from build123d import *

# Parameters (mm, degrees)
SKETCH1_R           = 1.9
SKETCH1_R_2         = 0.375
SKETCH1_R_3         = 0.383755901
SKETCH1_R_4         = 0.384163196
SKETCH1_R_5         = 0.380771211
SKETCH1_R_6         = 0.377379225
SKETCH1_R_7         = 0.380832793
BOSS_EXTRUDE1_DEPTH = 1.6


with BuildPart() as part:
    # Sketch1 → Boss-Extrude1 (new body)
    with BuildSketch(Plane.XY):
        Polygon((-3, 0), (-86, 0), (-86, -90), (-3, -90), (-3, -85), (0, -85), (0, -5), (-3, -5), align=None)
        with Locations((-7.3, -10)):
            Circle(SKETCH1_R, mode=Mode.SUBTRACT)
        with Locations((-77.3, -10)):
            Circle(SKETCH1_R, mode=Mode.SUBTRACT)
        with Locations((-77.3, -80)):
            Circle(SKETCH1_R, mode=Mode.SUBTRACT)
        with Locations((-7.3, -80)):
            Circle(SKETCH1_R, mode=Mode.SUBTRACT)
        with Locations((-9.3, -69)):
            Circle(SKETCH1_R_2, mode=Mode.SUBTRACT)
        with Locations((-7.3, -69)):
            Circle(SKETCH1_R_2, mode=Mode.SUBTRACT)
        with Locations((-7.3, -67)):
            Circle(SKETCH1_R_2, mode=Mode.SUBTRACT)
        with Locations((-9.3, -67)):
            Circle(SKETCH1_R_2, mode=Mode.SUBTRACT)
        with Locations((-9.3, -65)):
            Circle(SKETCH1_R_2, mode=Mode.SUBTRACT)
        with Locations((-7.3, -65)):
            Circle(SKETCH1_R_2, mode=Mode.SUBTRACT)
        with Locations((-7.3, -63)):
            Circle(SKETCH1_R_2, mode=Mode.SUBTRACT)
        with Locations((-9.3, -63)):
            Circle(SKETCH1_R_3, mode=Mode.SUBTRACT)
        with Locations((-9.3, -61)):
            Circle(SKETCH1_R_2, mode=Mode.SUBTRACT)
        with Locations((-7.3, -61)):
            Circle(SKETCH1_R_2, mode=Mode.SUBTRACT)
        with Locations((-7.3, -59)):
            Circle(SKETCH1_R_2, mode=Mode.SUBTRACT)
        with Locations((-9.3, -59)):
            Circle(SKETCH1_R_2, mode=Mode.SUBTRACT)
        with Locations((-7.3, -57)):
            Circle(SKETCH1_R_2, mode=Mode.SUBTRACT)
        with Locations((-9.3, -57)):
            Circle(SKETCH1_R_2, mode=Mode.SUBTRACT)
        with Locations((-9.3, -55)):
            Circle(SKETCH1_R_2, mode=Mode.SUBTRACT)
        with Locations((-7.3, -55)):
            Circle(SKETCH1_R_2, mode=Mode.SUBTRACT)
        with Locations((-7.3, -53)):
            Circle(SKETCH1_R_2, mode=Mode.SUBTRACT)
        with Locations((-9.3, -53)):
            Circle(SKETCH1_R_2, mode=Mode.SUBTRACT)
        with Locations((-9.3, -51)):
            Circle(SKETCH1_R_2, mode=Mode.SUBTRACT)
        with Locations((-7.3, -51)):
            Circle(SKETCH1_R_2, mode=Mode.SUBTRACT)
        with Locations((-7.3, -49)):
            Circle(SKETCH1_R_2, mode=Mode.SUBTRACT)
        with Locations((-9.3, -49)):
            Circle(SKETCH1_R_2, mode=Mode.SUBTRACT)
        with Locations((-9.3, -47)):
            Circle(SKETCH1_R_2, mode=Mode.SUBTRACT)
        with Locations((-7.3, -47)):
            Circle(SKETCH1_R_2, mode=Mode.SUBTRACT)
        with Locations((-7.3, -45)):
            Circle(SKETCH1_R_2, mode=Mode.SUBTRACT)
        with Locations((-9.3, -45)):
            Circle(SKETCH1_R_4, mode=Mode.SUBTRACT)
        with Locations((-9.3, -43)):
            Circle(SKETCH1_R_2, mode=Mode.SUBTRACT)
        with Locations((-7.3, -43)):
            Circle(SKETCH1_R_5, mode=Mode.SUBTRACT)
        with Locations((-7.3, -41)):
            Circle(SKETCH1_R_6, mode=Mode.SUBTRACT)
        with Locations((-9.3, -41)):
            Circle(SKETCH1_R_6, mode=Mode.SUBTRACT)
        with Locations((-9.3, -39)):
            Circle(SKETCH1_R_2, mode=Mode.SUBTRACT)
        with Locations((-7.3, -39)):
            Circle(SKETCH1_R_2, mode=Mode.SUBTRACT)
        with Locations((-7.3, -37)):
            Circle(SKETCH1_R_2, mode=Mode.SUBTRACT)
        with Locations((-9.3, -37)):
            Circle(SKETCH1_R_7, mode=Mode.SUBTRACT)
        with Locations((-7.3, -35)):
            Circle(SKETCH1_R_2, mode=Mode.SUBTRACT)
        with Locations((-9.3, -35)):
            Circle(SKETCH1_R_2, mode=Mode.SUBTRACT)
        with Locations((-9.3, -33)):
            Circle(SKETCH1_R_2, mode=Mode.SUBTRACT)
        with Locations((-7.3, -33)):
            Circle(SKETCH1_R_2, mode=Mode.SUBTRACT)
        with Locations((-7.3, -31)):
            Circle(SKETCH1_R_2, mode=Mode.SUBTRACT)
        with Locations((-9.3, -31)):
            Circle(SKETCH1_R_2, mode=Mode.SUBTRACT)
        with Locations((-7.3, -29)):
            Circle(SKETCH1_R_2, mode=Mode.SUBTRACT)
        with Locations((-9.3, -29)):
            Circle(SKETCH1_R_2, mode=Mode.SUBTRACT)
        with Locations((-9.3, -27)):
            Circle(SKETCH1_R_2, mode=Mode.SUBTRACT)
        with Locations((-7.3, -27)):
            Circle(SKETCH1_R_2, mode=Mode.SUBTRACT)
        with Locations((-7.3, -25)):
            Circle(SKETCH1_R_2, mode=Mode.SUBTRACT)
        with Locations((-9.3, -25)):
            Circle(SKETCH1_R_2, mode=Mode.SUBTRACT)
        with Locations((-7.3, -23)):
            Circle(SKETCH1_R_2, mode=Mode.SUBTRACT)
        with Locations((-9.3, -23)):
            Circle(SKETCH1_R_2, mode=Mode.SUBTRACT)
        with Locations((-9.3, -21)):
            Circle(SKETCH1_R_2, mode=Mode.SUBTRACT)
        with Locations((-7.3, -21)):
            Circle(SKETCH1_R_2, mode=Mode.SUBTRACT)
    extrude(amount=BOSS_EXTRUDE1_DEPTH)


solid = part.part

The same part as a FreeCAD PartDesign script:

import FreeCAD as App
import Part
import Sketcher

doc = App.newDocument("Part")
body = doc.addObject("PartDesign::Body", "Body")

# Sketch on XY plane
sketch1 = body.newObject("Sketcher::SketchObject", "Sketch")
sketch1.AttachmentSupport = (doc.getObject("XY_Plane"), [""])
sketch1.MapMode = "FlatFace"
sketch1.addGeometry(Part.LineSegment(App.Vector(-3, 0, 0), App.Vector(-86, 0, 0)), False)
sketch1.addGeometry(Part.LineSegment(App.Vector(-86, 0, 0), App.Vector(-86, -90, 0)), False)
sketch1.addGeometry(Part.LineSegment(App.Vector(-86, -90, 0), App.Vector(-3, -90, 0)), False)
sketch1.addGeometry(Part.LineSegment(App.Vector(-3, -90, 0), App.Vector(-3, -85, 0)), False)
sketch1.addGeometry(Part.LineSegment(App.Vector(-3, -85, 0), App.Vector(0, -85, 0)), False)
sketch1.addGeometry(Part.LineSegment(App.Vector(0, -85, 0), App.Vector(0, -5, 0)), False)
sketch1.addGeometry(Part.LineSegment(App.Vector(0, -5, 0), App.Vector(-3, -5, 0)), False)
sketch1.addGeometry(Part.LineSegment(App.Vector(-3, -5, 0), App.Vector(-3, 0, 0)), False)
sketch1.addGeometry(Part.Circle(App.Vector(-77.3, -80, 0), App.Vector(0, 0, 1), 1.9), False)
sketch1.addGeometry(Part.Circle(App.Vector(-7.3, -80, 0), App.Vector(0, 0, 1), 1.9), False)
sketch1.addGeometry(Part.Circle(App.Vector(-9.3, -69, 0), App.Vector(0, 0, 1), 0.375), False)
sketch1.addGeometry(Part.Circle(App.Vector(-7.3, -69, 0), App.Vector(0, 0, 1), 0.375), False)
sketch1.addGeometry(Part.Circle(App.Vector(-9.3, -67, 0), App.Vector(0, 0, 1), 0.375), False)
sketch1.addGeometry(Part.Circle(App.Vector(-7.3, -67, 0), App.Vector(0, 0, 1), 0.375), False)
sketch1.addGeometry(Part.Circle(App.Vector(-9.3, -65, 0), App.Vector(0, 0, 1), 0.375), False)
sketch1.addGeometry(Part.Circle(App.Vector(-7.3, -65, 0), App.Vector(0, 0, 1), 0.375), False)
sketch1.addGeometry(Part.Circle(App.Vector(-9.3, -63, 0), App.Vector(0, 0, 1), 0.383756), False)
sketch1.addGeometry(Part.Circle(App.Vector(-7.3, -63, 0), App.Vector(0, 0, 1), 0.375), False)
sketch1.addGeometry(Part.Circle(App.Vector(-9.3, -61, 0), App.Vector(0, 0, 1), 0.375), False)
sketch1.addGeometry(Part.Circle(App.Vector(-9.3, -59, 0), App.Vector(0, 0, 1), 0.375), False)
sketch1.addGeometry(Part.Circle(App.Vector(-7.3, -61, 0), App.Vector(0, 0, 1), 0.375), False)
sketch1.addGeometry(Part.Circle(App.Vector(-7.3, -59, 0), App.Vector(0, 0, 1), 0.375), False)
sketch1.addGeometry(Part.Circle(App.Vector(-9.3, -57, 0), App.Vector(0, 0, 1), 0.375), False)
sketch1.addGeometry(Part.Circle(App.Vector(-7.3, -57, 0), App.Vector(0, 0, 1), 0.375), False)
sketch1.addGeometry(Part.Circle(App.Vector(-9.3, -55, 0), App.Vector(0, 0, 1), 0.375), False)
sketch1.addGeometry(Part.Circle(App.Vector(-7.3, -55, 0), App.Vector(0, 0, 1), 0.375), False)
sketch1.addGeometry(Part.Circle(App.Vector(-9.3, -53, 0), App.Vector(0, 0, 1), 0.375), False)
sketch1.addGeometry(Part.Circle(App.Vector(-7.3, -53, 0), App.Vector(0, 0, 1), 0.375), False)
sketch1.addGeometry(Part.Circle(App.Vector(-9.3, -51, 0), App.Vector(0, 0, 1), 0.375), False)
sketch1.addGeometry(Part.Circle(App.Vector(-7.3, -51, 0), App.Vector(0, 0, 1), 0.375), False)
sketch1.addGeometry(Part.Circle(App.Vector(-9.3, -49, 0), App.Vector(0, 0, 1), 0.375), False)
sketch1.addGeometry(Part.Circle(App.Vector(-7.3, -49, 0), App.Vector(0, 0, 1), 0.375), False)
sketch1.addGeometry(Part.Circle(App.Vector(-9.3, -47, 0), App.Vector(0, 0, 1), 0.375), False)
sketch1.addGeometry(Part.Circle(App.Vector(-7.3, -47, 0), App.Vector(0, 0, 1), 0.375), False)
sketch1.addGeometry(Part.Circle(App.Vector(-77.3, -10, 0), App.Vector(0, 0, 1), 1.9), False)
sketch1.addGeometry(Part.Circle(App.Vector(-9.3, -45, 0), App.Vector(0, 0, 1), 0.384163), False)
sketch1.addGeometry(Part.Circle(App.Vector(-9.3, -43, 0), App.Vector(0, 0, 1), 0.375), False)
sketch1.addGeometry(Part.Circle(App.Vector(-7.3, -45, 0), App.Vector(0, 0, 1), 0.375), False)
sketch1.addGeometry(Part.Circle(App.Vector(-7.3, -43, 0), App.Vector(0, 0, 1), 0.380771), False)
sketch1.addGeometry(Part.Circle(App.Vector(-9.3, -41, 0), App.Vector(0, 0, 1), 0.377379), False)
sketch1.addGeometry(Part.Circle(App.Vector(-7.3, -41, 0), App.Vector(0, 0, 1), 0.377379), False)
sketch1.addGeometry(Part.Circle(App.Vector(-9.3, -39, 0), App.Vector(0, 0, 1), 0.375), False)
sketch1.addGeometry(Part.Circle(App.Vector(-7.3, -39, 0), App.Vector(0, 0, 1), 0.375), False)
sketch1.addGeometry(Part.Circle(App.Vector(-9.3, -37, 0), App.Vector(0, 0, 1), 0.380833), False)
sketch1.addGeometry(Part.Circle(App.Vector(-7.3, -37, 0), App.Vector(0, 0, 1), 0.375), False)
sketch1.addGeometry(Part.Circle(App.Vector(-9.3, -35, 0), App.Vector(0, 0, 1), 0.375), False)
sketch1.addGeometry(Part.Circle(App.Vector(-7.3, -35, 0), App.Vector(0, 0, 1), 0.375), False)
sketch1.addGeometry(Part.Circle(App.Vector(-9.3, -33, 0), App.Vector(0, 0, 1), 0.375), False)
sketch1.addGeometry(Part.Circle(App.Vector(-7.3, -33, 0), App.Vector(0, 0, 1), 0.375), False)
sketch1.addGeometry(Part.Circle(App.Vector(-9.3, -31, 0), App.Vector(0, 0, 1), 0.375), False)
sketch1.addGeometry(Part.Circle(App.Vector(-9.3, -29, 0), App.Vector(0, 0, 1), 0.375), False)
sketch1.addGeometry(Part.Circle(App.Vector(-7.3, -31, 0), App.Vector(0, 0, 1), 0.375), False)
sketch1.addGeometry(Part.Circle(App.Vector(-7.3, -29, 0), App.Vector(0, 0, 1), 0.375), False)
sketch1.addGeometry(Part.Circle(App.Vector(-9.3, -27, 0), App.Vector(0, 0, 1), 0.375), False)
sketch1.addGeometry(Part.Circle(App.Vector(-7.3, -27, 0), App.Vector(0, 0, 1), 0.375), False)
sketch1.addGeometry(Part.Circle(App.Vector(-9.3, -25, 0), App.Vector(0, 0, 1), 0.375), False)
sketch1.addGeometry(Part.Circle(App.Vector(-7.3, -25, 0), App.Vector(0, 0, 1), 0.375), False)
sketch1.addGeometry(Part.Circle(App.Vector(-9.3, -23, 0), App.Vector(0, 0, 1), 0.375), False)
sketch1.addGeometry(Part.Circle(App.Vector(-7.3, -23, 0), App.Vector(0, 0, 1), 0.375), False)
sketch1.addGeometry(Part.Circle(App.Vector(-9.3, -21, 0), App.Vector(0, 0, 1), 0.375), False)
sketch1.addGeometry(Part.Circle(App.Vector(-7.3, -21, 0), App.Vector(0, 0, 1), 0.375), False)
sketch1.addGeometry(Part.Circle(App.Vector(-7.3, -10, 0), App.Vector(0, 0, 1), 1.9), False)
sketch1.addConstraint(Sketcher.Constraint("Coincident", 0, 2, 1, 1))
sketch1.addConstraint(Sketcher.Constraint("Coincident", 1, 2, 2, 1))
sketch1.addConstraint(Sketcher.Constraint("Coincident", 2, 2, 3, 1))
sketch1.addConstraint(Sketcher.Constraint("Coincident", 3, 2, 4, 1))
sketch1.addConstraint(Sketcher.Constraint("Coincident", 4, 2, 5, 1))
sketch1.addConstraint(Sketcher.Constraint("Coincident", 5, 2, 6, 1))
sketch1.addConstraint(Sketcher.Constraint("Coincident", 6, 2, 7, 1))
sketch1.addConstraint(Sketcher.Constraint("Coincident", 7, 2, 0, 1))
sketch1.addConstraint(Sketcher.Constraint("Horizontal", 0))
sketch1.addConstraint(Sketcher.Constraint("Vertical", 1))
sketch1.addConstraint(Sketcher.Constraint("Horizontal", 2))
sketch1.addConstraint(Sketcher.Constraint("Vertical", 3))
sketch1.addConstraint(Sketcher.Constraint("Horizontal", 4))
sketch1.addConstraint(Sketcher.Constraint("Vertical", 5))
sketch1.addConstraint(Sketcher.Constraint("Horizontal", 6))
sketch1.addConstraint(Sketcher.Constraint("Vertical", 7))
sketch1.addConstraint(Sketcher.Constraint("Equal", 8, 9))
sketch1.addConstraint(Sketcher.Constraint("Equal", 10, 11))
sketch1.addConstraint(Sketcher.Constraint("Equal", 11, 12))
sketch1.addConstraint(Sketcher.Constraint("Equal", 12, 13))
sketch1.addConstraint(Sketcher.Constraint("Equal", 13, 14))
sketch1.addConstraint(Sketcher.Constraint("Equal", 14, 15))
sketch1.addConstraint(Sketcher.Constraint("Equal", 15, 17))
sketch1.addConstraint(Sketcher.Constraint("Equal", 17, 18))
sketch1.addConstraint(Sketcher.Constraint("Equal", 18, 19))
sketch1.addConstraint(Sketcher.Constraint("Equal", 19, 20))
sketch1.addConstraint(Sketcher.Constraint("Equal", 20, 21))
sketch1.addConstraint(Sketcher.Constraint("Equal", 21, 22))
sketch1.addConstraint(Sketcher.Constraint("Equal", 22, 23))
sketch1.addConstraint(Sketcher.Constraint("Equal", 23, 24))
sketch1.addConstraint(Sketcher.Constraint("Equal", 24, 25))
sketch1.addConstraint(Sketcher.Constraint("Equal", 25, 26))
sketch1.addConstraint(Sketcher.Constraint("Equal", 26, 27))
sketch1.addConstraint(Sketcher.Constraint("Equal", 27, 28))
sketch1.addConstraint(Sketcher.Constraint("Equal", 28, 29))
sketch1.addConstraint(Sketcher.Constraint("Equal", 29, 30))
sketch1.addConstraint(Sketcher.Constraint("Equal", 30, 31))
sketch1.addConstraint(Sketcher.Constraint("Equal", 31, 32))
sketch1.addConstraint(Sketcher.Constraint("Equal", 32, 33))
sketch1.addConstraint(Sketcher.Constraint("Equal", 9, 34))
sketch1.addConstraint(Sketcher.Constraint("Equal", 33, 36))
sketch1.addConstraint(Sketcher.Constraint("Equal", 36, 37))
sketch1.addConstraint(Sketcher.Constraint("Equal", 39, 40))
sketch1.addConstraint(Sketcher.Constraint("Equal", 37, 41))
sketch1.addConstraint(Sketcher.Constraint("Equal", 41, 42))
sketch1.addConstraint(Sketcher.Constraint("Equal", 42, 44))
sketch1.addConstraint(Sketcher.Constraint("Equal", 44, 45))
sketch1.addConstraint(Sketcher.Constraint("Equal", 45, 46))
sketch1.addConstraint(Sketcher.Constraint("Equal", 46, 47))
sketch1.addConstraint(Sketcher.Constraint("Equal", 47, 48))
sketch1.addConstraint(Sketcher.Constraint("Equal", 48, 49))
sketch1.addConstraint(Sketcher.Constraint("Equal", 49, 50))
sketch1.addConstraint(Sketcher.Constraint("Equal", 50, 51))
sketch1.addConstraint(Sketcher.Constraint("Equal", 51, 52))
sketch1.addConstraint(Sketcher.Constraint("Equal", 52, 53))
sketch1.addConstraint(Sketcher.Constraint("Equal", 53, 54))
sketch1.addConstraint(Sketcher.Constraint("Equal", 54, 55))
sketch1.addConstraint(Sketcher.Constraint("Equal", 55, 56))
sketch1.addConstraint(Sketcher.Constraint("Equal", 56, 57))
sketch1.addConstraint(Sketcher.Constraint("Equal", 57, 58))
sketch1.addConstraint(Sketcher.Constraint("Equal", 58, 59))
sketch1.addConstraint(Sketcher.Constraint("Equal", 59, 60))
sketch1.addConstraint(Sketcher.Constraint("Equal", 34, 61))
sketch1.addConstraint(Sketcher.Constraint("PointOnObject", 0, 2, -1))
sketch1.addConstraint(Sketcher.Constraint("PointOnObject", 4, 2, -2))
sketch1.addConstraint(Sketcher.Constraint("Horizontal", 8, 3, 9, 3))
sketch1.addConstraint(Sketcher.Constraint("Horizontal", 10, 3, 11, 3))
sketch1.addConstraint(Sketcher.Constraint("Horizontal", 12, 3, 13, 3))
sketch1.addConstraint(Sketcher.Constraint("Horizontal", 14, 3, 15, 3))
sketch1.addConstraint(Sketcher.Constraint("Horizontal", 16, 3, 17, 3))
sketch1.addConstraint(Sketcher.Constraint("Horizontal", 18, 3, 20, 3))
sketch1.addConstraint(Sketcher.Constraint("Horizontal", 19, 3, 21, 3))
sketch1.addConstraint(Sketcher.Constraint("Horizontal", 22, 3, 23, 3))
sketch1.addConstraint(Sketcher.Constraint("Horizontal", 24, 3, 25, 3))
sketch1.addConstraint(Sketcher.Constraint("Horizontal", 26, 3, 27, 3))
sketch1.addConstraint(Sketcher.Constraint("Horizontal", 28, 3, 29, 3))
sketch1.addConstraint(Sketcher.Constraint("Horizontal", 30, 3, 31, 3))
sketch1.addConstraint(Sketcher.Constraint("Horizontal", 32, 3, 33, 3))
sketch1.addConstraint(Sketcher.Constraint("Horizontal", 35, 3, 37, 3))
sketch1.addConstraint(Sketcher.Constraint("Horizontal", 36, 3, 38, 3))
sketch1.addConstraint(Sketcher.Constraint("Horizontal", 39, 3, 40, 3))
sketch1.addConstraint(Sketcher.Constraint("Horizontal", 41, 3, 42, 3))
sketch1.addConstraint(Sketcher.Constraint("Horizontal", 43, 3, 44, 3))
sketch1.addConstraint(Sketcher.Constraint("Horizontal", 45, 3, 46, 3))
sketch1.addConstraint(Sketcher.Constraint("Horizontal", 47, 3, 48, 3))
sketch1.addConstraint(Sketcher.Constraint("Horizontal", 49, 3, 51, 3))
sketch1.addConstraint(Sketcher.Constraint("Horizontal", 50, 3, 52, 3))
sketch1.addConstraint(Sketcher.Constraint("Horizontal", 53, 3, 54, 3))
sketch1.addConstraint(Sketcher.Constraint("Horizontal", 55, 3, 56, 3))
sketch1.addConstraint(Sketcher.Constraint("Horizontal", 57, 3, 58, 3))
sketch1.addConstraint(Sketcher.Constraint("Horizontal", 59, 3, 60, 3))
sketch1.addConstraint(Sketcher.Constraint("Horizontal", 34, 3, 61, 3))
sketch1.addConstraint(Sketcher.Constraint("Vertical", 9, 3, 11, 3))
sketch1.addConstraint(Sketcher.Constraint("Vertical", 10, 3, 12, 3))
sketch1.addConstraint(Sketcher.Constraint("Vertical", 11, 3, 13, 3))
sketch1.addConstraint(Sketcher.Constraint("Vertical", 12, 3, 14, 3))
sketch1.addConstraint(Sketcher.Constraint("Vertical", 13, 3, 15, 3))
sketch1.addConstraint(Sketcher.Constraint("Vertical", 14, 3, 16, 3))
sketch1.addConstraint(Sketcher.Constraint("Vertical", 15, 3, 17, 3))
sketch1.addConstraint(Sketcher.Constraint("Vertical", 16, 3, 18, 3))
sketch1.addConstraint(Sketcher.Constraint("Vertical", 18, 3, 19, 3))
sketch1.addConstraint(Sketcher.Constraint("Vertical", 17, 3, 20, 3))
sketch1.addConstraint(Sketcher.Constraint("Vertical", 20, 3, 21, 3))
sketch1.addConstraint(Sketcher.Constraint("Vertical", 19, 3, 22, 3))
sketch1.addConstraint(Sketcher.Constraint("Vertical", 21, 3, 23, 3))
sketch1.addConstraint(Sketcher.Constraint("Vertical", 22, 3, 24, 3))
sketch1.addConstraint(Sketcher.Constraint("Vertical", 23, 3, 25, 3))
sketch1.addConstraint(Sketcher.Constraint("Vertical", 24, 3, 26, 3))
sketch1.addConstraint(Sketcher.Constraint("Vertical", 25, 3, 27, 3))
sketch1.addConstraint(Sketcher.Constraint("Vertical", 26, 3, 28, 3))
sketch1.addConstraint(Sketcher.Constraint("Vertical", 27, 3, 29, 3))
sketch1.addConstraint(Sketcher.Constraint("Vertical", 28, 3, 30, 3))
sketch1.addConstraint(Sketcher.Constraint("Vertical", 29, 3, 31, 3))
sketch1.addConstraint(Sketcher.Constraint("Vertical", 30, 3, 32, 3))
sketch1.addConstraint(Sketcher.Constraint("Vertical", 31, 3, 33, 3))
sketch1.addConstraint(Sketcher.Constraint("Vertical", 8, 3, 34, 3))
sketch1.addConstraint(Sketcher.Constraint("Vertical", 32, 3, 35, 3))
sketch1.addConstraint(Sketcher.Constraint("Vertical", 35, 3, 36, 3))
sketch1.addConstraint(Sketcher.Constraint("Vertical", 33, 3, 37, 3))
sketch1.addConstraint(Sketcher.Constraint("Vertical", 37, 3, 38, 3))
sketch1.addConstraint(Sketcher.Constraint("Vertical", 36, 3, 39, 3))
sketch1.addConstraint(Sketcher.Constraint("Vertical", 38, 3, 40, 3))
sketch1.addConstraint(Sketcher.Constraint("Vertical", 39, 3, 41, 3))
sketch1.addConstraint(Sketcher.Constraint("Vertical", 40, 3, 42, 3))
sketch1.addConstraint(Sketcher.Constraint("Vertical", 41, 3, 43, 3))
sketch1.addConstraint(Sketcher.Constraint("Vertical", 42, 3, 44, 3))
sketch1.addConstraint(Sketcher.Constraint("Vertical", 43, 3, 45, 3))
sketch1.addConstraint(Sketcher.Constraint("Vertical", 44, 3, 46, 3))
sketch1.addConstraint(Sketcher.Constraint("Vertical", 45, 3, 47, 3))
sketch1.addConstraint(Sketcher.Constraint("Vertical", 46, 3, 48, 3))
sketch1.addConstraint(Sketcher.Constraint("Vertical", 47, 3, 49, 3))
sketch1.addConstraint(Sketcher.Constraint("Vertical", 49, 3, 50, 3))
sketch1.addConstraint(Sketcher.Constraint("Vertical", 48, 3, 51, 3))
sketch1.addConstraint(Sketcher.Constraint("Vertical", 51, 3, 52, 3))
sketch1.addConstraint(Sketcher.Constraint("Vertical", 50, 3, 53, 3))
sketch1.addConstraint(Sketcher.Constraint("Vertical", 52, 3, 54, 3))
sketch1.addConstraint(Sketcher.Constraint("Vertical", 53, 3, 55, 3))
sketch1.addConstraint(Sketcher.Constraint("Vertical", 54, 3, 56, 3))
sketch1.addConstraint(Sketcher.Constraint("Vertical", 55, 3, 57, 3))
sketch1.addConstraint(Sketcher.Constraint("Vertical", 56, 3, 58, 3))
sketch1.addConstraint(Sketcher.Constraint("Vertical", 57, 3, 59, 3))
sketch1.addConstraint(Sketcher.Constraint("Vertical", 58, 3, 60, 3))
sketch1.addConstraint(Sketcher.Constraint("Vertical", 60, 3, 61, 3))
sketch1.addConstraint(Sketcher.Constraint("Vertical", 3, 2, 6, 2))
sketch1.addConstraint(Sketcher.Constraint("Equal", 3, 7))
sketch1.addConstraint(Sketcher.Constraint("Diameter", 8, 3.8))
sketch1.addConstraint(Sketcher.Constraint("Diameter", 10, 0.75))
sketch1.addConstraint(Sketcher.Constraint("DistanceX", 0, 2, 0, 1, 83.0))
sketch1.addConstraint(Sketcher.Constraint("DistanceX", 4, 1, 4, 2, 3.0))
sketch1.addConstraint(Sketcher.Constraint("DistanceY", 1, 2, 1, 1, 90.0))
sketch1.addConstraint(Sketcher.Constraint("DistanceY", 3, 1, 3, 2, 5.0))
sketch1.addConstraint(Sketcher.Constraint("DistanceY", 8, 3, -1, 1, 80.0))
sketch1.addConstraint(Sketcher.Constraint("DistanceY", 10, 3, -1, 1, 69.0))
sketch1.addConstraint(Sketcher.Constraint("DistanceY", 12, 3, -1, 1, 67.0))
sketch1.addConstraint(Sketcher.Constraint("DistanceY", 14, 3, -1, 1, 65.0))
sketch1.addConstraint(Sketcher.Constraint("DistanceY", 16, 3, -1, 1, 63.0))
sketch1.addConstraint(Sketcher.Constraint("DistanceY", 18, 3, -1, 1, 61.0))
sketch1.addConstraint(Sketcher.Constraint("DistanceY", 19, 3, -1, 1, 59.0))
sketch1.addConstraint(Sketcher.Constraint("DistanceY", 22, 3, -1, 1, 57.0))
sketch1.addConstraint(Sketcher.Constraint("DistanceY", 24, 3, -1, 1, 55.0))
sketch1.addConstraint(Sketcher.Constraint("DistanceY", 26, 3, -1, 1, 53.0))
sketch1.addConstraint(Sketcher.Constraint("DistanceY", 28, 3, -1, 1, 51.0))
sketch1.addConstraint(Sketcher.Constraint("DistanceY", 30, 3, -1, 1, 49.0))
sketch1.addConstraint(Sketcher.Constraint("DistanceY", 32, 3, -1, 1, 47.0))
sketch1.addConstraint(Sketcher.Constraint("DistanceY", 34, 3, -1, 1, 10.0))
sketch1.addConstraint(Sketcher.Constraint("DistanceY", 35, 3, -1, 1, 45.0))
sketch1.addConstraint(Sketcher.Constraint("DistanceY", 36, 3, -1, 1, 43.0))
sketch1.addConstraint(Sketcher.Constraint("DistanceY", 39, 3, -1, 1, 41.0))
sketch1.addConstraint(Sketcher.Constraint("DistanceY", 41, 3, -1, 1, 39.0))
sketch1.addConstraint(Sketcher.Constraint("DistanceY", 43, 3, -1, 1, 37.0))
sketch1.addConstraint(Sketcher.Constraint("DistanceY", 45, 3, -1, 1, 35.0))
sketch1.addConstraint(Sketcher.Constraint("DistanceY", 47, 3, -1, 1, 33.0))
sketch1.addConstraint(Sketcher.Constraint("DistanceY", 49, 3, -1, 1, 31.0))
sketch1.addConstraint(Sketcher.Constraint("DistanceY", 50, 3, -1, 1, 29.0))
sketch1.addConstraint(Sketcher.Constraint("DistanceY", 53, 3, -1, 1, 27.0))
sketch1.addConstraint(Sketcher.Constraint("DistanceY", 55, 3, -1, 1, 25.0))
sketch1.addConstraint(Sketcher.Constraint("DistanceY", 57, 3, -1, 1, 23.0))
sketch1.addConstraint(Sketcher.Constraint("DistanceY", 59, 3, -1, 1, 21.0))
sketch1.addConstraint(Sketcher.Constraint("DistanceX", 8, 3, -1, 1, 77.3))
sketch1.addConstraint(Sketcher.Constraint("DistanceX", 9, 3, -1, 1, 7.3))
sketch1.addConstraint(Sketcher.Constraint("DistanceX", 10, 3, -1, 1, 9.3))
sketch1.addConstraint(Sketcher.Constraint("Diameter", 16, 0.767512))
sketch1.addConstraint(Sketcher.Constraint("Diameter", 39, 0.754758))
sketch1.addConstraint(Sketcher.Constraint("Diameter", 35, 0.768326))
sketch1.addConstraint(Sketcher.Constraint("Diameter", 38, 0.761542))
sketch1.addConstraint(Sketcher.Constraint("Diameter", 43, 0.761666))
pad1 = body.newObject("PartDesign::Pad", "Pad")
pad1.Profile = sketch1
pad1.Length = 1.6

doc.recompute()
